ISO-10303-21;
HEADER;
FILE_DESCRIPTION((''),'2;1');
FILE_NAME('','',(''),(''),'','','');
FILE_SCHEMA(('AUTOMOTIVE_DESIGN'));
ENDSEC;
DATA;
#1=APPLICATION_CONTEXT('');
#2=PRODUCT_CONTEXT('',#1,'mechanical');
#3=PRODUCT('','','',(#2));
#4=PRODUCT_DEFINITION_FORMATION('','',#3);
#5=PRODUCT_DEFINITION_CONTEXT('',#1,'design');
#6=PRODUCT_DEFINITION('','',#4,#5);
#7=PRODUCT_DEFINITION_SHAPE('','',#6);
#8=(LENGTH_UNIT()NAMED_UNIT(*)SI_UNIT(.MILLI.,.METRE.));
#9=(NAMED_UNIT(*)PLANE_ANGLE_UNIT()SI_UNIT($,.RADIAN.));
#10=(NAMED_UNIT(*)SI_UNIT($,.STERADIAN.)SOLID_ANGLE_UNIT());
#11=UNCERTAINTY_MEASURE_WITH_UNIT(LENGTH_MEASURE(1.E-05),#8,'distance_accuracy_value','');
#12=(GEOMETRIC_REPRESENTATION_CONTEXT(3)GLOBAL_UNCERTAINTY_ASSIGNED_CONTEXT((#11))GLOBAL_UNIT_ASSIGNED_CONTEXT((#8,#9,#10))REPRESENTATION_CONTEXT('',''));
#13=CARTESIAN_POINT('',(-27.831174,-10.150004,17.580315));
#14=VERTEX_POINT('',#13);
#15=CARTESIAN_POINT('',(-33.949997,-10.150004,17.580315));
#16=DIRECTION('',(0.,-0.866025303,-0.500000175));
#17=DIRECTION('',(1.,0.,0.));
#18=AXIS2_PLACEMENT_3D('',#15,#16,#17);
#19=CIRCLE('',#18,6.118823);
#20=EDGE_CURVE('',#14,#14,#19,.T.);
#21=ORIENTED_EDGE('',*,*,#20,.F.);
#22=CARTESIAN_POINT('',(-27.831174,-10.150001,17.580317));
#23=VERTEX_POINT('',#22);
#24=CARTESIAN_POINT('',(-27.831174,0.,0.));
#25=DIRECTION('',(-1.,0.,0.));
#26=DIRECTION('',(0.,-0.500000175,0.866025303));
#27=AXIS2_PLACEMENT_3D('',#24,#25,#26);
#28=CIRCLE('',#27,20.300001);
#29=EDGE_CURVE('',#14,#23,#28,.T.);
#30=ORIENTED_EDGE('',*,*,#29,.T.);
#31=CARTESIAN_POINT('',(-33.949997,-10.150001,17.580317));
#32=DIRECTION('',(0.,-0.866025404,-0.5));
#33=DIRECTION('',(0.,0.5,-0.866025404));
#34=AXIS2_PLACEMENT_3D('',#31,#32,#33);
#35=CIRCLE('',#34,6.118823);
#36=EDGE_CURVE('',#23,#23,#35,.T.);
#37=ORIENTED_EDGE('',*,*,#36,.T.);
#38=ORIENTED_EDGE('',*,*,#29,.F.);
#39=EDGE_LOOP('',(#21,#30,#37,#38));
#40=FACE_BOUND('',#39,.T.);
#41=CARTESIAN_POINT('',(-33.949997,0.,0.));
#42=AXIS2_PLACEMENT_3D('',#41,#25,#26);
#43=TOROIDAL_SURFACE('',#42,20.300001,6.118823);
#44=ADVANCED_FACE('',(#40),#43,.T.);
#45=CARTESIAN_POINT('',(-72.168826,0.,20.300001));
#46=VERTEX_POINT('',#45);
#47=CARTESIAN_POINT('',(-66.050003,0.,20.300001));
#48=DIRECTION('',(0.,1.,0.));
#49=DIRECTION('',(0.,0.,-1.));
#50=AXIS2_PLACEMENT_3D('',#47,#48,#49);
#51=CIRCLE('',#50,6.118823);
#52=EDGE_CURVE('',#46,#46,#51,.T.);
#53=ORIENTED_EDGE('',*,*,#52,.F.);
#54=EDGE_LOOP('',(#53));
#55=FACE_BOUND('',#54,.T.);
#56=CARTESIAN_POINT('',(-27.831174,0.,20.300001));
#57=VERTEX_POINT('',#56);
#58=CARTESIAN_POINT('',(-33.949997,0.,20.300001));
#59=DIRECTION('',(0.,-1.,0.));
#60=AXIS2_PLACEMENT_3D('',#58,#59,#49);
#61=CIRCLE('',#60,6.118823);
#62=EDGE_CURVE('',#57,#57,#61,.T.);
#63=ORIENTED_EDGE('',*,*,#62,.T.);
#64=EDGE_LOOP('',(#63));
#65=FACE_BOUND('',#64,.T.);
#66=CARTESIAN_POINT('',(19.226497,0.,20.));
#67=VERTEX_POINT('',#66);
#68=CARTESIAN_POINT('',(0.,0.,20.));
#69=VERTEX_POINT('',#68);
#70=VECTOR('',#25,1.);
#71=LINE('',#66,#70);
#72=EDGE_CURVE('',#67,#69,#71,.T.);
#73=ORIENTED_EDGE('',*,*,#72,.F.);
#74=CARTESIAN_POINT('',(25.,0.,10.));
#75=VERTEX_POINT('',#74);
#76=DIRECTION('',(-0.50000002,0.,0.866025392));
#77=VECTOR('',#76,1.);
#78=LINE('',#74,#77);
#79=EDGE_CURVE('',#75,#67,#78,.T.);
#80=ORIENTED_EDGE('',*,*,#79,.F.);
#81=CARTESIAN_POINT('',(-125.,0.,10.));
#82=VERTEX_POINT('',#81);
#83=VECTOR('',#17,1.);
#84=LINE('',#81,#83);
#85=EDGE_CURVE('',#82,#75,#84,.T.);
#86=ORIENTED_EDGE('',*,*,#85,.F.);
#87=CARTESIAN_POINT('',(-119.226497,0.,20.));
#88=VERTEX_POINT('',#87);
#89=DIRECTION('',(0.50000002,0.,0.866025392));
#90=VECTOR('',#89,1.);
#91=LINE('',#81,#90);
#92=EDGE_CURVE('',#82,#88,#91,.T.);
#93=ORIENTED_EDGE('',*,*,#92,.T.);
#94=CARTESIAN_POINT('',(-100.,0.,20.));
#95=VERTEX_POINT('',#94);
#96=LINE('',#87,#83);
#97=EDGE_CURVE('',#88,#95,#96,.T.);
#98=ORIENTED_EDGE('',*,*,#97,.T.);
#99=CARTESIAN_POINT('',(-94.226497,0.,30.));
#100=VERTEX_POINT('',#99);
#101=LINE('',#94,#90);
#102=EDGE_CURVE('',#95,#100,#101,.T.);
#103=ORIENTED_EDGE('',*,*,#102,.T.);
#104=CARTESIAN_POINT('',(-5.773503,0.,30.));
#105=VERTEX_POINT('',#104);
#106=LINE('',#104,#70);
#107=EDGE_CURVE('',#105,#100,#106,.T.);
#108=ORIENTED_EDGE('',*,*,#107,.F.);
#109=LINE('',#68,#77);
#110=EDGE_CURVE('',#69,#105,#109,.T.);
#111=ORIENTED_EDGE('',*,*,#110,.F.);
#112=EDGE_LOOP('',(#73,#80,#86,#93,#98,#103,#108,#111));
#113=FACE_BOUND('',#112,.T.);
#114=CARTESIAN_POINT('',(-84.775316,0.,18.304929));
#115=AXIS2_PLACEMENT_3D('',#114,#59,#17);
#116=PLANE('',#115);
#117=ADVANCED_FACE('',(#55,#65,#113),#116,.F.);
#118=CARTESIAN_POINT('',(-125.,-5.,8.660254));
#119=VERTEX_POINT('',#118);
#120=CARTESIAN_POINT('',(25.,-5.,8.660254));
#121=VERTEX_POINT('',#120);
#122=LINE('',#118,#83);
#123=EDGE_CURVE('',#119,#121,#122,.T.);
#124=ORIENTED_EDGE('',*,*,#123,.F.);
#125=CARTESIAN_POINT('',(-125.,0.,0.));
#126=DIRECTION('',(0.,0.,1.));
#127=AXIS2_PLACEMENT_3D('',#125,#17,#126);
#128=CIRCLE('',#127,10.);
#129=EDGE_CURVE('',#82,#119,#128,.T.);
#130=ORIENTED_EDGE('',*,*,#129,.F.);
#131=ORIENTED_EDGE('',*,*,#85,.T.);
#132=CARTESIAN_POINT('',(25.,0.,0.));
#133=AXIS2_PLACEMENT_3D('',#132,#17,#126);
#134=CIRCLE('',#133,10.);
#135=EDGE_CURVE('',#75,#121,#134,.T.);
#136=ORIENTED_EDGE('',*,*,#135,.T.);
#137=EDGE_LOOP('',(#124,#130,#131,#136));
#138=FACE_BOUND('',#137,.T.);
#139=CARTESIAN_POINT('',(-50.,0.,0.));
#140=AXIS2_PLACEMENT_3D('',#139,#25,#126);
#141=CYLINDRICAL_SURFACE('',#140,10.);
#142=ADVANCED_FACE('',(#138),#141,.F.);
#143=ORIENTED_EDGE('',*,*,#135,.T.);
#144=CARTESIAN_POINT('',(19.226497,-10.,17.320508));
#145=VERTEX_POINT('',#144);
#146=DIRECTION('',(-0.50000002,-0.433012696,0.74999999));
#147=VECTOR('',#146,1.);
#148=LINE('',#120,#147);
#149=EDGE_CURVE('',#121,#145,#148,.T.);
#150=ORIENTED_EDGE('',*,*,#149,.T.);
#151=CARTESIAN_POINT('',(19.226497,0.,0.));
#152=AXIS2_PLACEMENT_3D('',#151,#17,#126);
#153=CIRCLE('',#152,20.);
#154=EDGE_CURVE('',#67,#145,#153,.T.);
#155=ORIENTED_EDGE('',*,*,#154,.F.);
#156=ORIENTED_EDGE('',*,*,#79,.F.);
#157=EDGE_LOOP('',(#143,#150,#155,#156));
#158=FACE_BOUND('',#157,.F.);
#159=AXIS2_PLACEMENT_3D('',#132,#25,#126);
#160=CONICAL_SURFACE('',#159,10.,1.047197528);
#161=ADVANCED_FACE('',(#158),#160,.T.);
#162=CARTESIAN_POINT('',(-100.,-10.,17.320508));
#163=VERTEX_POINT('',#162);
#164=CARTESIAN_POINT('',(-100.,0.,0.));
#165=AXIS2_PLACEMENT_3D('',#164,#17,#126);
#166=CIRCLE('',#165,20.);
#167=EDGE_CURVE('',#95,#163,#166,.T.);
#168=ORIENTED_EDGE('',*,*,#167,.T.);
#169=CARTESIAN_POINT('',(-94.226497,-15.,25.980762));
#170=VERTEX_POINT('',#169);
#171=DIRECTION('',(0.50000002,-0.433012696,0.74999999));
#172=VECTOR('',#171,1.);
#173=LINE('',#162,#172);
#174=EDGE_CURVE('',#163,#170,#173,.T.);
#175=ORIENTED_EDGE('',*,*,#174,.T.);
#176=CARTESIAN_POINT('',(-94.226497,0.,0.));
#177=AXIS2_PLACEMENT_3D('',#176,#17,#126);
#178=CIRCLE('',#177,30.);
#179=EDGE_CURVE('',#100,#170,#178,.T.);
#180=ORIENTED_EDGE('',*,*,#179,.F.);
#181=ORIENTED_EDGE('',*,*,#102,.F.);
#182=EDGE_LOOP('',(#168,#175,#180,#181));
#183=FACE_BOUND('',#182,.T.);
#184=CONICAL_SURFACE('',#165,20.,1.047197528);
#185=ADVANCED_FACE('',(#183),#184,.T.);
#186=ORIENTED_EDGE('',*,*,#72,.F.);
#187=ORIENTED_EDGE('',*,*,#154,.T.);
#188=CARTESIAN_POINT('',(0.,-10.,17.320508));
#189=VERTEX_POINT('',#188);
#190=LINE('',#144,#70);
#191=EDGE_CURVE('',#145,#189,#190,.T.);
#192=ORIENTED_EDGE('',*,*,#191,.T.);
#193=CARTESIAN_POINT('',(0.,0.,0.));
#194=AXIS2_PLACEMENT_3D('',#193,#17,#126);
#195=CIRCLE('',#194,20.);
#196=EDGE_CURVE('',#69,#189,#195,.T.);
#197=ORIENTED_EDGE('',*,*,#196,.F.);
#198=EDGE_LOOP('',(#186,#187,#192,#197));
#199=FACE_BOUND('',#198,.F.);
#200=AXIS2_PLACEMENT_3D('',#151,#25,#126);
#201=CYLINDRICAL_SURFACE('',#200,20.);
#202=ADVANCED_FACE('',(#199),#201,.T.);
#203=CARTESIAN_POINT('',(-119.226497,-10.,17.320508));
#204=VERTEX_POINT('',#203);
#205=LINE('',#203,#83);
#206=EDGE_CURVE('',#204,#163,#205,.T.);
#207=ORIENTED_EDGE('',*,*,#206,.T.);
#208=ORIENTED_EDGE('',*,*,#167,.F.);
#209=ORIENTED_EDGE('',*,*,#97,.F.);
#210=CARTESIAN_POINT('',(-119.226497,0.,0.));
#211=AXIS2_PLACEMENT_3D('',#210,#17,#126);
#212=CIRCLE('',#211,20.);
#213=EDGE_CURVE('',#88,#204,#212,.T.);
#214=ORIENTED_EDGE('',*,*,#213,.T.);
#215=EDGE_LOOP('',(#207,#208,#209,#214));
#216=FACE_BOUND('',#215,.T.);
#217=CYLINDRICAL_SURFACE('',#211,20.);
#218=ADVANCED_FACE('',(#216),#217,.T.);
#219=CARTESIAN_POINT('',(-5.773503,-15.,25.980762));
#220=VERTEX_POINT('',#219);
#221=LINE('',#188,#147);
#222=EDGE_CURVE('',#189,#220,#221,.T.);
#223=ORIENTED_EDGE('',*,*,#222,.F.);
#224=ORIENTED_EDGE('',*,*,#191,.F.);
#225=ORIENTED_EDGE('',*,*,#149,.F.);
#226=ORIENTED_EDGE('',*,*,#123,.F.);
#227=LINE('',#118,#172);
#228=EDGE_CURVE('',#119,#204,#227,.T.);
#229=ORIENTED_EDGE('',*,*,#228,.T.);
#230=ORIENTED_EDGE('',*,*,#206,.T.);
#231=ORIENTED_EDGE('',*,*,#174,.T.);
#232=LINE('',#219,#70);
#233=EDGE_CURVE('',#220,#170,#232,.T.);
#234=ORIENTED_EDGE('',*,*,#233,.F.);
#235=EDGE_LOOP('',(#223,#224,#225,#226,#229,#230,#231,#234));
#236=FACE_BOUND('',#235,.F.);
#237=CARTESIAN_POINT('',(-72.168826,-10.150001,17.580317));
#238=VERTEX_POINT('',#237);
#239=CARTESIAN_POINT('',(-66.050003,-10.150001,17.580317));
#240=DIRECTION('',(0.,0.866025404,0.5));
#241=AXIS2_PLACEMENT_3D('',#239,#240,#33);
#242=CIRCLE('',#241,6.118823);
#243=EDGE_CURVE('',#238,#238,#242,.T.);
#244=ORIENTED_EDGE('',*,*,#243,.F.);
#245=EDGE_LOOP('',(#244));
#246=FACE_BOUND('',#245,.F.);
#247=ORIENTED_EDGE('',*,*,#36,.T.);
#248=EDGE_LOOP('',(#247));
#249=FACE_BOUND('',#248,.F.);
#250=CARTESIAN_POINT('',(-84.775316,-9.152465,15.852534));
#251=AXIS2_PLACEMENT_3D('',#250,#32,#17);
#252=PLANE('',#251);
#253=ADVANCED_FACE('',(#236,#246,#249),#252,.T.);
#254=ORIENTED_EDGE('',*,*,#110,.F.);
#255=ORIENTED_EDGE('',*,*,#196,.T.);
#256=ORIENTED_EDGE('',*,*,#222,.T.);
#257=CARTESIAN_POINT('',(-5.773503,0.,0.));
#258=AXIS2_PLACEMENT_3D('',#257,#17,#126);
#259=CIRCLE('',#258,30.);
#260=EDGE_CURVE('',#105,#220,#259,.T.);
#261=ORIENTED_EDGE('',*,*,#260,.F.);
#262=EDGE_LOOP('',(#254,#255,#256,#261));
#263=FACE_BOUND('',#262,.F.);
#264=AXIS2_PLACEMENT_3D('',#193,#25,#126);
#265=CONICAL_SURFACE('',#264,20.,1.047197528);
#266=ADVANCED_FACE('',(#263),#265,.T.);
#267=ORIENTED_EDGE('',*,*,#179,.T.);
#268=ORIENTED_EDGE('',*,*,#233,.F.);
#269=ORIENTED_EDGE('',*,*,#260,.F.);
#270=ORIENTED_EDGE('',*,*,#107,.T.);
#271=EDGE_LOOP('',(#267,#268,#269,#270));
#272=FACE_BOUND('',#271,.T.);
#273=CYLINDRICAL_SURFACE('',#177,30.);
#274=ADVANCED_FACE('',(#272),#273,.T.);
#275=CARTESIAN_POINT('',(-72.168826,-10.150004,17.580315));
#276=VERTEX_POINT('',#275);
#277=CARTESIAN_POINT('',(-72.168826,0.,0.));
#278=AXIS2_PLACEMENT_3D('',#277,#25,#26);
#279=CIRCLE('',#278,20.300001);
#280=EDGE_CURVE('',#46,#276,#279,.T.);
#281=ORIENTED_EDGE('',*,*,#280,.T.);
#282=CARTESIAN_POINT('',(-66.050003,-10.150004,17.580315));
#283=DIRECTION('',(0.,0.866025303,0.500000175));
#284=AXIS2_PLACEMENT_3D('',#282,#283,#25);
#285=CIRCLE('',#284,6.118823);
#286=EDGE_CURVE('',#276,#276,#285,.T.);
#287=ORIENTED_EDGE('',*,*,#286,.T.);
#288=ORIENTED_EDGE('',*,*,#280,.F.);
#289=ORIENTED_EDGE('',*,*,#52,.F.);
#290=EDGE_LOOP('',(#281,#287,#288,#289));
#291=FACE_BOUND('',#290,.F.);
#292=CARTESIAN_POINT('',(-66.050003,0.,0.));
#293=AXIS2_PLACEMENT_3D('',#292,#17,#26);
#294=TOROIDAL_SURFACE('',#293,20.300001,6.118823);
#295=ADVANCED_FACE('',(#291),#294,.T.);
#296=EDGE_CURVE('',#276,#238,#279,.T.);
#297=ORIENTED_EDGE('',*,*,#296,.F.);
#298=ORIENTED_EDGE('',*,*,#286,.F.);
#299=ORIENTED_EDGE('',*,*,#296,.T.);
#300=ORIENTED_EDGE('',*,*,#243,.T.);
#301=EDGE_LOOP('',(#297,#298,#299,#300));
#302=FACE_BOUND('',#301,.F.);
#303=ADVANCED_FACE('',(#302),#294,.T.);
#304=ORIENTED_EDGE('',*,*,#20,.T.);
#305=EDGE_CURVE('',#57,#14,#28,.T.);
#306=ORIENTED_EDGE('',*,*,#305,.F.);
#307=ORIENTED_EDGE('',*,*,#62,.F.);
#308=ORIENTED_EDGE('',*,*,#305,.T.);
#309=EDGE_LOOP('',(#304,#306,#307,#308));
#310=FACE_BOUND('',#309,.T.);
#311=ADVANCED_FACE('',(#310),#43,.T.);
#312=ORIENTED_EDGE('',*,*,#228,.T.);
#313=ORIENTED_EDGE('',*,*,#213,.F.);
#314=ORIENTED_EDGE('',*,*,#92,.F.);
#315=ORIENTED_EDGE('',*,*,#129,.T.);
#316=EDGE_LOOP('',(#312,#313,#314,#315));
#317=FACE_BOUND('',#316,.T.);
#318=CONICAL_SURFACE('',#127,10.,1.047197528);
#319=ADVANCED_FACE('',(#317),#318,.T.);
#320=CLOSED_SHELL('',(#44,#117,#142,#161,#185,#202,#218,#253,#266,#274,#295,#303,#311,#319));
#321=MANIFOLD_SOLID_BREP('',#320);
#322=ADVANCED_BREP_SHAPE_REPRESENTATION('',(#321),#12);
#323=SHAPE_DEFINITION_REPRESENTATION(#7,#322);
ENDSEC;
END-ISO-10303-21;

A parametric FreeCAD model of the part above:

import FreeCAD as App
import Part
import Sketcher

V = App.Vector
Q = App.Units.Quantity

doc = App.newDocument("Part")
body = doc.addObject("PartDesign::Body", "Body")

# Sketch on XZ plane
sketch1 = body.newObject("Sketcher::SketchObject", "Sketch")
sketch1.AttachmentSupport = (doc.getObject("XZ_Plane"), [""])
sketch1.MapMode = "FlatFace"
sketch1.addGeometry([
    Part.LineSegment(V(-5.773503, 30, 0), V(-50, 30, 0)),  # 0
    Part.LineSegment(V(-50, 30, 0), V(-50, 10, 0)),  # 1
    Part.LineSegment(V(-50, 10, 0), V(25, 10, 0)),  # 2
    Part.LineSegment(V(25, 10, 0), V(19.226497, 20, 0)),  # 3
    Part.LineSegment(V(19.226497, 20, 0), V(0, 20, 0)),  # 4
    Part.LineSegment(V(0, 20, 0), V(-5.773503, 30, 0)),  # 5
], False)
sketch1.addConstraint([
    Sketcher.Constraint("Coincident", 0, 2, 1, 1),
    Sketcher.Constraint("Coincident", 1, 2, 2, 1),
    Sketcher.Constraint("Coincident", 2, 2, 3, 1),
    Sketcher.Constraint("Coincident", 3, 2, 4, 1),
    Sketcher.Constraint("Coincident", 4, 2, 5, 1),
    Sketcher.Constraint("Coincident", 5, 2, 0, 1),
    Sketcher.Constraint("Horizontal", 0),
    Sketcher.Constraint("Vertical", 1),
    Sketcher.Constraint("Horizontal", 2),
    Sketcher.Constraint("Horizontal", 4),
    Sketcher.Constraint("PointOnObject", 4, 2, -2),
    Sketcher.Constraint("Parallel", 3, 5),
    Sketcher.Constraint("Equal", 3, 5),
    Sketcher.Constraint("DistanceX", 2, 1, 2, 2, 75.0),
    Sketcher.Constraint("DistanceY", 1, 2, 1, 1, 20.0),
    Sketcher.Constraint("Angle", 3, Q("120.000001 deg")),
    Sketcher.Constraint("DistanceX", 0, 2, -1, 1, 50.0),
    Sketcher.Constraint("DistanceY", -1, 1, 0, 2, 30.0),
])
revolution = body.newObject("PartDesign::Revolution", "Revolution")
revolution.Profile = sketch1
revolution.ReferenceAxis = (sketch1, ["H_Axis"])
revolution.Angle = 30

# Sketch on an angled plane
sketch2 = body.newObject("Sketcher::SketchObject", "Sketch001")
sketch2.Placement = App.Placement(V(0, 0, 0), App.Rotation(V(1, 0, 0), V(0, -0.500000175, 0.866025303), V(0, -0.866025303, -0.500000175), "ZXY"))
sketch2.addGeometry(Part.Circle(V(-33.949997, 20.300001, 0), V(0, 0, 1), 6.118823), False)
sketch2.addConstraint([
    Sketcher.Constraint("DistanceY", -1, 1, 0, 3, 20.300001),
    Sketcher.Constraint("Diameter", 0, 12.237646),
    Sketcher.Constraint("DistanceX", 0, 3, -1, 1, 33.949997),
])
revolution2 = body.newObject("PartDesign::Revolution", "Revolution001")
revolution2.Profile = sketch2
revolution2.ReferenceAxis = (sketch2, ["H_Axis"])
revolution2.Angle = 360
body2 = doc.addObject("PartDesign::Body", "Body001")
doc.recompute()

body2.BaseFeature = body
doc.recompute()

mirroring = doc.addObject("Part::Mirroring", "Mirroring")
mirroring.Source = body
mirroring.Base = V(-50, -5.543907, 20.690143)
mirroring.Normal = V(-1, 0, 0)
body3 = doc.addObject("PartDesign::Body", "Body002")
body3.BaseFeature = mirroring
boolean = body2.newObject("PartDesign::Boolean", "Boolean")
boolean.Type = "Fuse"
boolean.addObjects([body3])
doc.recompute()
mirroring.Visibility = False

doc.recompute()
